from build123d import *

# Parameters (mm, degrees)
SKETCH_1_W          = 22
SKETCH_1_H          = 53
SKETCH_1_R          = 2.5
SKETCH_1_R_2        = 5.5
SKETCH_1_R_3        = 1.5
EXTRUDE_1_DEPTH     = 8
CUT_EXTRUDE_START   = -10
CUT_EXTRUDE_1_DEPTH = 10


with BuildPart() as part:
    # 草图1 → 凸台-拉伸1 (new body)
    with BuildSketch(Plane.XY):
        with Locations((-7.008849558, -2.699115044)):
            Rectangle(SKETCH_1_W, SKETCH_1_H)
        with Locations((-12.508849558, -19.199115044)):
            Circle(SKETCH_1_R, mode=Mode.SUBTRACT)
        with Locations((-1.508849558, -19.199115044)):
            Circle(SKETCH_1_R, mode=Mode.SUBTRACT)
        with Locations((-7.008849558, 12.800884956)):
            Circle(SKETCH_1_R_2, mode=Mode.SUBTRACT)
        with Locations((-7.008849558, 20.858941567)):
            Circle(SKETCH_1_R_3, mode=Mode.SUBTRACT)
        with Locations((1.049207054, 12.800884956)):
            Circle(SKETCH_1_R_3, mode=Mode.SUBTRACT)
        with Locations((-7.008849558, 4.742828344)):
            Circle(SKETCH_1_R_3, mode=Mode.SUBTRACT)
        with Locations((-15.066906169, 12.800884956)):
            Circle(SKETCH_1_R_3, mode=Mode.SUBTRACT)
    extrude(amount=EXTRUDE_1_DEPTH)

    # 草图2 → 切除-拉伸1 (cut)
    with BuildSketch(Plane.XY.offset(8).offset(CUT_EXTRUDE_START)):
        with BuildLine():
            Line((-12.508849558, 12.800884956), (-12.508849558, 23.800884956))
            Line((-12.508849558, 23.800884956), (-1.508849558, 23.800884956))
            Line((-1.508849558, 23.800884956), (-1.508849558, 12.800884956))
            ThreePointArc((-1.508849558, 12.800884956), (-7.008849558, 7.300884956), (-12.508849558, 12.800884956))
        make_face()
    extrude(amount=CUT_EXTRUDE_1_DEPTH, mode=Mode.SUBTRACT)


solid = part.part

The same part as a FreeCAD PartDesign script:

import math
import FreeCAD as App
import Part
import Sketcher
Q = App.Units.Quantity

doc = App.newDocument("Part")
body = doc.addObject("PartDesign::Body", "Body")

sketch1 = body.newObject("Sketcher::SketchObject", "Sketch")
sketch1.AttachmentSupport = (doc.getObject("XY_Plane"), [""])
sketch1.MapMode = "FlatFace"
sketch1.addGeometry([
    Part.LineSegment(App.Vector(-18, 23.8, 0), App.Vector(-18, -29.2, 0)),
    Part.LineSegment(App.Vector(-18, -29.2, 0), App.Vector(4, -29.2, 0)),
    Part.LineSegment(App.Vector(4, -29.2, 0), App.Vector(4, 23.8, 0)),
    Part.LineSegment(App.Vector(4, 23.8, 0), App.Vector(-18, 23.8, 0)),
    Part.Circle(App.Vector(-12.5, -19.2, 0), App.Vector(0, 0, 1), 2.5),
    Part.Circle(App.Vector(-1.5, -19.2, 0), App.Vector(0, 0, 1), 2.5),
    Part.Circle(App.Vector(-7, 4.7, 0), App.Vector(0, 0, 1), 1.5),
    Part.Circle(App.Vector(-15.1, 12.8, 0), App.Vector(0, 0, 1), 1.5),
    Part.Circle(App.Vector(-7, 12.8, 0), App.Vector(0, 0, 1), 5.5),
    Part.Circle(App.Vector(-7, 20.9, 0), App.Vector(0, 0, 1), 1.5),
    Part.Circle(App.Vector(1, 12.8, 0), App.Vector(0, 0, 1), 1.5),
], False)
sketch1.addConstraint([
    Sketcher.Constraint("Coincident", 0, 2, 1, 1),
    Sketcher.Constraint("Coincident", 1, 2, 2, 1),
    Sketcher.Constraint("Coincident", 2, 2, 3, 1),
    Sketcher.Constraint("Coincident", 3, 2, 0, 1),
    Sketcher.Constraint("Vertical", 0),
    Sketcher.Constraint("Horizontal", 1),
    Sketcher.Constraint("Vertical", 2),
    Sketcher.Constraint("Horizontal", 3),
    Sketcher.Constraint("Equal", 4, 5),
    Sketcher.Constraint("Equal", 6, 7),
    Sketcher.Constraint("Equal", 7, 9),
    Sketcher.Constraint("Equal", 9, 10),
    Sketcher.Constraint("Horizontal", 4, 3, 5, 3),
    Sketcher.Constraint("Horizontal", 7, 3, 8, 3),
    Sketcher.Constraint("Horizontal", 8, 3, 10, 3),
    Sketcher.Constraint("Vertical", 6, 3, 8, 3),
    Sketcher.Constraint("Vertical", 8, 3, 9, 3),
    Sketcher.Constraint("Diameter", 4, Q("5 mm")),
    Sketcher.Constraint("Diameter", 6, Q("3 mm")),
    Sketcher.Constraint("Diameter", 8, Q("11 mm")),
    Sketcher.Constraint("DistanceX", 1, 1, 1, 2, Q("22 mm")),
    Sketcher.Constraint("DistanceY", 0, 2, 0, 1, Q("53 mm")),
    Sketcher.Constraint("DistanceX", 4, 3, 5, 3, Q("11 mm")),
    Sketcher.Constraint("DistanceY", 4, 3, 7, 3, Q("32 mm")),
    Sketcher.Constraint("DistanceY", 0, 2, 4, 3, Q("10 mm")),
    Sketcher.Constraint("DistanceX", 0, 2, 6, 3, Q("11 mm")),
    Sketcher.Constraint("DistanceX", 4, 3, 6, 3, Q("5.5 mm")),
    Sketcher.Constraint("DistanceX", 4, 3, -1, 1, Q("12.50885 mm")),
    Sketcher.Constraint("DistanceY", -1, 1, 6, 3, Q("4.742828 mm")),
    Sketcher.Constraint("DistanceY", -1, 1, 9, 3, Q("20.858942 mm")),
    Sketcher.Constraint("DistanceY", 4, 3, -1, 1, Q("19.199115 mm")),
    Sketcher.Constraint("DistanceX", 7, 3, -1, 1, Q("15.066906 mm")),
    Sketcher.Constraint("DistanceX", -1, 1, 10, 3, Q("1.049207 mm")),
])
pad1 = body.newObject("PartDesign::Pad", "Pad")
pad1.Profile = sketch1
pad1.Length = 8

sketch2 = body.newObject("Sketcher::SketchObject", "Sketch001")
sketch2.AttachmentSupport = (doc.getObject("XY_Plane"), [""])
sketch2.MapMode = "FlatFace"
sketch2.AttachmentOffset = App.Placement(App.Vector(0, 0, -2), App.Rotation())
sketch2.addGeometry([
    Part.LineSegment(App.Vector(-13, 24, 0), App.Vector(-13, 13, 0)),
    Part.ArcOfCircle(Part.Circle(App.Vector(-7, 13, 0), App.Vector(0, 0, 1), 6), math.radians(180), math.radians(360)),
    Part.LineSegment(App.Vector(-2, 13, 0), App.Vector(-2, 24, 0)),
    Part.LineSegment(App.Vector(-2, 24, 0), App.Vector(-13, 24, 0)),
], False)
sketch2.addConstraint([
    Sketcher.Constraint("Tangent", 0, 2, 1, 1),
    Sketcher.Constraint("Tangent", 1, 2, 2, 1),
    Sketcher.Constraint("Coincident", 2, 2, 3, 1),
    Sketcher.Constraint("Coincident", 3, 2, 0, 1),
    Sketcher.Constraint("Vertical", 0),
    Sketcher.Constraint("Vertical", 2),
    Sketcher.Constraint("Horizontal", 3),
    Sketcher.Constraint("Equal", 3, 0),
    Sketcher.Constraint("Radius", 1, Q("5.5 mm")),
    Sketcher.Constraint("DistanceX", 1, 3, -1, 1, Q("7.00885 mm")),
    Sketcher.Constraint("DistanceY", -1, 1, 1, 3, Q("12.800885 mm")),
])
pocket1 = body.newObject("PartDesign::Pocket", "Pocket")
pocket1.Profile = sketch2
pocket1.Length = 10
pocket1.Reversed = True

doc.recompute()
